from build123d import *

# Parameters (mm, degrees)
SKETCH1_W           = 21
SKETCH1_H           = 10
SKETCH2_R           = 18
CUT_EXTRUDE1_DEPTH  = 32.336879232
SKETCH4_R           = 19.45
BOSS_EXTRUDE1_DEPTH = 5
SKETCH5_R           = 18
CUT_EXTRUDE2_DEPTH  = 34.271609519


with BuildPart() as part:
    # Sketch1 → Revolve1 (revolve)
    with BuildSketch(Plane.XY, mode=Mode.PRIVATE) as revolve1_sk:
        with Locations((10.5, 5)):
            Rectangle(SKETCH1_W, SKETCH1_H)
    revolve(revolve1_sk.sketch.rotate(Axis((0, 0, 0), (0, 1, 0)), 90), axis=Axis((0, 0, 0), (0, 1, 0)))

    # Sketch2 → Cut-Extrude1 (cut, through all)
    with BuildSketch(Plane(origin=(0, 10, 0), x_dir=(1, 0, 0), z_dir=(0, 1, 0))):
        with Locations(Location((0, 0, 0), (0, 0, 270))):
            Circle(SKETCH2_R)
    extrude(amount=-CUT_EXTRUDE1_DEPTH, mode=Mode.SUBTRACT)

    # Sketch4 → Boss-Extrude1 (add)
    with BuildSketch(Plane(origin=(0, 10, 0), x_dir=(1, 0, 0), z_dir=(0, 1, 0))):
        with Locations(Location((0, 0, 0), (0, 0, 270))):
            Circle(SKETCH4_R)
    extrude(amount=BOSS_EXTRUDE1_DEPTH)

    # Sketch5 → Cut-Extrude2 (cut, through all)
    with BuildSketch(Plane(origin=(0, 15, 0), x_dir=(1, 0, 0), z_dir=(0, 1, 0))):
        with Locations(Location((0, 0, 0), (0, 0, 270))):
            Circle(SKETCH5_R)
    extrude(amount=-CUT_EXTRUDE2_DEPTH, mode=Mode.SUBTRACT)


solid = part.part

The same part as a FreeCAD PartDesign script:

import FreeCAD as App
import Part
import Sketcher
from FreeCAD import Vector

doc = App.newDocument("Part")
body = doc.addObject("PartDesign::Body", "Body")

sketch1 = body.newObject("Sketcher::SketchObject", "Sketch")
sketch1.AttachmentSupport = (doc.getObject("XY_Plane"), [""])
sketch1.MapMode = "FlatFace"
sketch1.addGeometry([
    Part.LineSegment(Vector(0, 10, 0), Vector(0, 0, 0)),
    Part.LineSegment(Vector(0, 0, 0), Vector(21, 0, 0)),
    Part.LineSegment(Vector(21, 0, 0), Vector(21, 10, 0)),
    Part.LineSegment(Vector(21, 10, 0), Vector(0, 10, 0)),
], False)
sketch1.addConstraint([
    Sketcher.Constraint("Coincident", 0, 2, 1, 1),
    Sketcher.Constraint("Coincident", 1, 2, 2, 1),
    Sketcher.Constraint("Coincident", 2, 2, 3, 1),
    Sketcher.Constraint("Coincident", 3, 2, 0, 1),
    Sketcher.Constraint("Vertical", 0),
    Sketcher.Constraint("Horizontal", 1),
    Sketcher.Constraint("Vertical", 2),
    Sketcher.Constraint("Horizontal", 3),
    Sketcher.Constraint("Coincident", 0, 2, -1, 1),
    Sketcher.Constraint("DistanceX", 1, 1, 1, 2, 21.0),
    Sketcher.Constraint("DistanceY", 0, 2, 0, 1, 10.0),
])
revolution = body.newObject("PartDesign::Revolution", "Revolution")
revolution.Profile = sketch1
revolution.ReferenceAxis = (sketch1, ["V_Axis"])
revolution.Angle = 360

sketch2 = body.newObject("Sketcher::SketchObject", "Sketch001")
sketch2.AttachmentSupport = (doc.getObject("XZ_Plane"), [""])
sketch2.MapMode = "FlatFace"
sketch2.AttachmentOffset = App.Placement(Vector(0, 0, -10), App.Rotation())
sketch2.addGeometry(Part.Circle(Vector(0, 0, 0), Vector(0, 0, 1), 18), False)
sketch2.addConstraint([
    Sketcher.Constraint("Coincident", 0, 3, -1, 1),
    Sketcher.Constraint("Diameter", 0, 36.0),
])
pocket1 = body.newObject("PartDesign::Pocket", "Pocket")
pocket1.Profile = sketch2
pocket1.Type = "ThroughAll"
pocket1.Reversed = True

sketch3 = body.newObject("Sketcher::SketchObject", "Sketch002")
sketch3.AttachmentSupport = (doc.getObject("XZ_Plane"), [""])
sketch3.MapMode = "FlatFace"
sketch3.AttachmentOffset = App.Placement(Vector(0, 0, -10), App.Rotation())
sketch3.addGeometry(Part.Circle(Vector(0, 0, 0), Vector(0, 0, 1), 19), False)
sketch3.addConstraint([
    Sketcher.Constraint("Coincident", 0, 3, -1, 1),
    Sketcher.Constraint("Diameter", 0, 38.9),
])
pad1 = body.newObject("PartDesign::Pad", "Pad")
pad1.Profile = sketch3
pad1.Length = 5
pad1.Reversed = True

sketch4 = body.newObject("Sketcher::SketchObject", "Sketch003")
sketch4.AttachmentSupport = (doc.getObject("XZ_Plane"), [""])
sketch4.MapMode = "FlatFace"
sketch4.AttachmentOffset = App.Placement(Vector(0, 0, -15), App.Rotation())
sketch4.addGeometry(Part.Circle(Vector(0, 0, 0), Vector(0, 0, 1), 18), False)
sketch4.addConstraint([
    Sketcher.Constraint("Coincident", 0, 3, -1, 1),
    Sketcher.Constraint("Diameter", 0, 36.0),
])
pocket2 = body.newObject("PartDesign::Pocket", "Pocket001")
pocket2.Profile = sketch4
pocket2.Type = "ThroughAll"
pocket2.Reversed = True

doc.recompute()
